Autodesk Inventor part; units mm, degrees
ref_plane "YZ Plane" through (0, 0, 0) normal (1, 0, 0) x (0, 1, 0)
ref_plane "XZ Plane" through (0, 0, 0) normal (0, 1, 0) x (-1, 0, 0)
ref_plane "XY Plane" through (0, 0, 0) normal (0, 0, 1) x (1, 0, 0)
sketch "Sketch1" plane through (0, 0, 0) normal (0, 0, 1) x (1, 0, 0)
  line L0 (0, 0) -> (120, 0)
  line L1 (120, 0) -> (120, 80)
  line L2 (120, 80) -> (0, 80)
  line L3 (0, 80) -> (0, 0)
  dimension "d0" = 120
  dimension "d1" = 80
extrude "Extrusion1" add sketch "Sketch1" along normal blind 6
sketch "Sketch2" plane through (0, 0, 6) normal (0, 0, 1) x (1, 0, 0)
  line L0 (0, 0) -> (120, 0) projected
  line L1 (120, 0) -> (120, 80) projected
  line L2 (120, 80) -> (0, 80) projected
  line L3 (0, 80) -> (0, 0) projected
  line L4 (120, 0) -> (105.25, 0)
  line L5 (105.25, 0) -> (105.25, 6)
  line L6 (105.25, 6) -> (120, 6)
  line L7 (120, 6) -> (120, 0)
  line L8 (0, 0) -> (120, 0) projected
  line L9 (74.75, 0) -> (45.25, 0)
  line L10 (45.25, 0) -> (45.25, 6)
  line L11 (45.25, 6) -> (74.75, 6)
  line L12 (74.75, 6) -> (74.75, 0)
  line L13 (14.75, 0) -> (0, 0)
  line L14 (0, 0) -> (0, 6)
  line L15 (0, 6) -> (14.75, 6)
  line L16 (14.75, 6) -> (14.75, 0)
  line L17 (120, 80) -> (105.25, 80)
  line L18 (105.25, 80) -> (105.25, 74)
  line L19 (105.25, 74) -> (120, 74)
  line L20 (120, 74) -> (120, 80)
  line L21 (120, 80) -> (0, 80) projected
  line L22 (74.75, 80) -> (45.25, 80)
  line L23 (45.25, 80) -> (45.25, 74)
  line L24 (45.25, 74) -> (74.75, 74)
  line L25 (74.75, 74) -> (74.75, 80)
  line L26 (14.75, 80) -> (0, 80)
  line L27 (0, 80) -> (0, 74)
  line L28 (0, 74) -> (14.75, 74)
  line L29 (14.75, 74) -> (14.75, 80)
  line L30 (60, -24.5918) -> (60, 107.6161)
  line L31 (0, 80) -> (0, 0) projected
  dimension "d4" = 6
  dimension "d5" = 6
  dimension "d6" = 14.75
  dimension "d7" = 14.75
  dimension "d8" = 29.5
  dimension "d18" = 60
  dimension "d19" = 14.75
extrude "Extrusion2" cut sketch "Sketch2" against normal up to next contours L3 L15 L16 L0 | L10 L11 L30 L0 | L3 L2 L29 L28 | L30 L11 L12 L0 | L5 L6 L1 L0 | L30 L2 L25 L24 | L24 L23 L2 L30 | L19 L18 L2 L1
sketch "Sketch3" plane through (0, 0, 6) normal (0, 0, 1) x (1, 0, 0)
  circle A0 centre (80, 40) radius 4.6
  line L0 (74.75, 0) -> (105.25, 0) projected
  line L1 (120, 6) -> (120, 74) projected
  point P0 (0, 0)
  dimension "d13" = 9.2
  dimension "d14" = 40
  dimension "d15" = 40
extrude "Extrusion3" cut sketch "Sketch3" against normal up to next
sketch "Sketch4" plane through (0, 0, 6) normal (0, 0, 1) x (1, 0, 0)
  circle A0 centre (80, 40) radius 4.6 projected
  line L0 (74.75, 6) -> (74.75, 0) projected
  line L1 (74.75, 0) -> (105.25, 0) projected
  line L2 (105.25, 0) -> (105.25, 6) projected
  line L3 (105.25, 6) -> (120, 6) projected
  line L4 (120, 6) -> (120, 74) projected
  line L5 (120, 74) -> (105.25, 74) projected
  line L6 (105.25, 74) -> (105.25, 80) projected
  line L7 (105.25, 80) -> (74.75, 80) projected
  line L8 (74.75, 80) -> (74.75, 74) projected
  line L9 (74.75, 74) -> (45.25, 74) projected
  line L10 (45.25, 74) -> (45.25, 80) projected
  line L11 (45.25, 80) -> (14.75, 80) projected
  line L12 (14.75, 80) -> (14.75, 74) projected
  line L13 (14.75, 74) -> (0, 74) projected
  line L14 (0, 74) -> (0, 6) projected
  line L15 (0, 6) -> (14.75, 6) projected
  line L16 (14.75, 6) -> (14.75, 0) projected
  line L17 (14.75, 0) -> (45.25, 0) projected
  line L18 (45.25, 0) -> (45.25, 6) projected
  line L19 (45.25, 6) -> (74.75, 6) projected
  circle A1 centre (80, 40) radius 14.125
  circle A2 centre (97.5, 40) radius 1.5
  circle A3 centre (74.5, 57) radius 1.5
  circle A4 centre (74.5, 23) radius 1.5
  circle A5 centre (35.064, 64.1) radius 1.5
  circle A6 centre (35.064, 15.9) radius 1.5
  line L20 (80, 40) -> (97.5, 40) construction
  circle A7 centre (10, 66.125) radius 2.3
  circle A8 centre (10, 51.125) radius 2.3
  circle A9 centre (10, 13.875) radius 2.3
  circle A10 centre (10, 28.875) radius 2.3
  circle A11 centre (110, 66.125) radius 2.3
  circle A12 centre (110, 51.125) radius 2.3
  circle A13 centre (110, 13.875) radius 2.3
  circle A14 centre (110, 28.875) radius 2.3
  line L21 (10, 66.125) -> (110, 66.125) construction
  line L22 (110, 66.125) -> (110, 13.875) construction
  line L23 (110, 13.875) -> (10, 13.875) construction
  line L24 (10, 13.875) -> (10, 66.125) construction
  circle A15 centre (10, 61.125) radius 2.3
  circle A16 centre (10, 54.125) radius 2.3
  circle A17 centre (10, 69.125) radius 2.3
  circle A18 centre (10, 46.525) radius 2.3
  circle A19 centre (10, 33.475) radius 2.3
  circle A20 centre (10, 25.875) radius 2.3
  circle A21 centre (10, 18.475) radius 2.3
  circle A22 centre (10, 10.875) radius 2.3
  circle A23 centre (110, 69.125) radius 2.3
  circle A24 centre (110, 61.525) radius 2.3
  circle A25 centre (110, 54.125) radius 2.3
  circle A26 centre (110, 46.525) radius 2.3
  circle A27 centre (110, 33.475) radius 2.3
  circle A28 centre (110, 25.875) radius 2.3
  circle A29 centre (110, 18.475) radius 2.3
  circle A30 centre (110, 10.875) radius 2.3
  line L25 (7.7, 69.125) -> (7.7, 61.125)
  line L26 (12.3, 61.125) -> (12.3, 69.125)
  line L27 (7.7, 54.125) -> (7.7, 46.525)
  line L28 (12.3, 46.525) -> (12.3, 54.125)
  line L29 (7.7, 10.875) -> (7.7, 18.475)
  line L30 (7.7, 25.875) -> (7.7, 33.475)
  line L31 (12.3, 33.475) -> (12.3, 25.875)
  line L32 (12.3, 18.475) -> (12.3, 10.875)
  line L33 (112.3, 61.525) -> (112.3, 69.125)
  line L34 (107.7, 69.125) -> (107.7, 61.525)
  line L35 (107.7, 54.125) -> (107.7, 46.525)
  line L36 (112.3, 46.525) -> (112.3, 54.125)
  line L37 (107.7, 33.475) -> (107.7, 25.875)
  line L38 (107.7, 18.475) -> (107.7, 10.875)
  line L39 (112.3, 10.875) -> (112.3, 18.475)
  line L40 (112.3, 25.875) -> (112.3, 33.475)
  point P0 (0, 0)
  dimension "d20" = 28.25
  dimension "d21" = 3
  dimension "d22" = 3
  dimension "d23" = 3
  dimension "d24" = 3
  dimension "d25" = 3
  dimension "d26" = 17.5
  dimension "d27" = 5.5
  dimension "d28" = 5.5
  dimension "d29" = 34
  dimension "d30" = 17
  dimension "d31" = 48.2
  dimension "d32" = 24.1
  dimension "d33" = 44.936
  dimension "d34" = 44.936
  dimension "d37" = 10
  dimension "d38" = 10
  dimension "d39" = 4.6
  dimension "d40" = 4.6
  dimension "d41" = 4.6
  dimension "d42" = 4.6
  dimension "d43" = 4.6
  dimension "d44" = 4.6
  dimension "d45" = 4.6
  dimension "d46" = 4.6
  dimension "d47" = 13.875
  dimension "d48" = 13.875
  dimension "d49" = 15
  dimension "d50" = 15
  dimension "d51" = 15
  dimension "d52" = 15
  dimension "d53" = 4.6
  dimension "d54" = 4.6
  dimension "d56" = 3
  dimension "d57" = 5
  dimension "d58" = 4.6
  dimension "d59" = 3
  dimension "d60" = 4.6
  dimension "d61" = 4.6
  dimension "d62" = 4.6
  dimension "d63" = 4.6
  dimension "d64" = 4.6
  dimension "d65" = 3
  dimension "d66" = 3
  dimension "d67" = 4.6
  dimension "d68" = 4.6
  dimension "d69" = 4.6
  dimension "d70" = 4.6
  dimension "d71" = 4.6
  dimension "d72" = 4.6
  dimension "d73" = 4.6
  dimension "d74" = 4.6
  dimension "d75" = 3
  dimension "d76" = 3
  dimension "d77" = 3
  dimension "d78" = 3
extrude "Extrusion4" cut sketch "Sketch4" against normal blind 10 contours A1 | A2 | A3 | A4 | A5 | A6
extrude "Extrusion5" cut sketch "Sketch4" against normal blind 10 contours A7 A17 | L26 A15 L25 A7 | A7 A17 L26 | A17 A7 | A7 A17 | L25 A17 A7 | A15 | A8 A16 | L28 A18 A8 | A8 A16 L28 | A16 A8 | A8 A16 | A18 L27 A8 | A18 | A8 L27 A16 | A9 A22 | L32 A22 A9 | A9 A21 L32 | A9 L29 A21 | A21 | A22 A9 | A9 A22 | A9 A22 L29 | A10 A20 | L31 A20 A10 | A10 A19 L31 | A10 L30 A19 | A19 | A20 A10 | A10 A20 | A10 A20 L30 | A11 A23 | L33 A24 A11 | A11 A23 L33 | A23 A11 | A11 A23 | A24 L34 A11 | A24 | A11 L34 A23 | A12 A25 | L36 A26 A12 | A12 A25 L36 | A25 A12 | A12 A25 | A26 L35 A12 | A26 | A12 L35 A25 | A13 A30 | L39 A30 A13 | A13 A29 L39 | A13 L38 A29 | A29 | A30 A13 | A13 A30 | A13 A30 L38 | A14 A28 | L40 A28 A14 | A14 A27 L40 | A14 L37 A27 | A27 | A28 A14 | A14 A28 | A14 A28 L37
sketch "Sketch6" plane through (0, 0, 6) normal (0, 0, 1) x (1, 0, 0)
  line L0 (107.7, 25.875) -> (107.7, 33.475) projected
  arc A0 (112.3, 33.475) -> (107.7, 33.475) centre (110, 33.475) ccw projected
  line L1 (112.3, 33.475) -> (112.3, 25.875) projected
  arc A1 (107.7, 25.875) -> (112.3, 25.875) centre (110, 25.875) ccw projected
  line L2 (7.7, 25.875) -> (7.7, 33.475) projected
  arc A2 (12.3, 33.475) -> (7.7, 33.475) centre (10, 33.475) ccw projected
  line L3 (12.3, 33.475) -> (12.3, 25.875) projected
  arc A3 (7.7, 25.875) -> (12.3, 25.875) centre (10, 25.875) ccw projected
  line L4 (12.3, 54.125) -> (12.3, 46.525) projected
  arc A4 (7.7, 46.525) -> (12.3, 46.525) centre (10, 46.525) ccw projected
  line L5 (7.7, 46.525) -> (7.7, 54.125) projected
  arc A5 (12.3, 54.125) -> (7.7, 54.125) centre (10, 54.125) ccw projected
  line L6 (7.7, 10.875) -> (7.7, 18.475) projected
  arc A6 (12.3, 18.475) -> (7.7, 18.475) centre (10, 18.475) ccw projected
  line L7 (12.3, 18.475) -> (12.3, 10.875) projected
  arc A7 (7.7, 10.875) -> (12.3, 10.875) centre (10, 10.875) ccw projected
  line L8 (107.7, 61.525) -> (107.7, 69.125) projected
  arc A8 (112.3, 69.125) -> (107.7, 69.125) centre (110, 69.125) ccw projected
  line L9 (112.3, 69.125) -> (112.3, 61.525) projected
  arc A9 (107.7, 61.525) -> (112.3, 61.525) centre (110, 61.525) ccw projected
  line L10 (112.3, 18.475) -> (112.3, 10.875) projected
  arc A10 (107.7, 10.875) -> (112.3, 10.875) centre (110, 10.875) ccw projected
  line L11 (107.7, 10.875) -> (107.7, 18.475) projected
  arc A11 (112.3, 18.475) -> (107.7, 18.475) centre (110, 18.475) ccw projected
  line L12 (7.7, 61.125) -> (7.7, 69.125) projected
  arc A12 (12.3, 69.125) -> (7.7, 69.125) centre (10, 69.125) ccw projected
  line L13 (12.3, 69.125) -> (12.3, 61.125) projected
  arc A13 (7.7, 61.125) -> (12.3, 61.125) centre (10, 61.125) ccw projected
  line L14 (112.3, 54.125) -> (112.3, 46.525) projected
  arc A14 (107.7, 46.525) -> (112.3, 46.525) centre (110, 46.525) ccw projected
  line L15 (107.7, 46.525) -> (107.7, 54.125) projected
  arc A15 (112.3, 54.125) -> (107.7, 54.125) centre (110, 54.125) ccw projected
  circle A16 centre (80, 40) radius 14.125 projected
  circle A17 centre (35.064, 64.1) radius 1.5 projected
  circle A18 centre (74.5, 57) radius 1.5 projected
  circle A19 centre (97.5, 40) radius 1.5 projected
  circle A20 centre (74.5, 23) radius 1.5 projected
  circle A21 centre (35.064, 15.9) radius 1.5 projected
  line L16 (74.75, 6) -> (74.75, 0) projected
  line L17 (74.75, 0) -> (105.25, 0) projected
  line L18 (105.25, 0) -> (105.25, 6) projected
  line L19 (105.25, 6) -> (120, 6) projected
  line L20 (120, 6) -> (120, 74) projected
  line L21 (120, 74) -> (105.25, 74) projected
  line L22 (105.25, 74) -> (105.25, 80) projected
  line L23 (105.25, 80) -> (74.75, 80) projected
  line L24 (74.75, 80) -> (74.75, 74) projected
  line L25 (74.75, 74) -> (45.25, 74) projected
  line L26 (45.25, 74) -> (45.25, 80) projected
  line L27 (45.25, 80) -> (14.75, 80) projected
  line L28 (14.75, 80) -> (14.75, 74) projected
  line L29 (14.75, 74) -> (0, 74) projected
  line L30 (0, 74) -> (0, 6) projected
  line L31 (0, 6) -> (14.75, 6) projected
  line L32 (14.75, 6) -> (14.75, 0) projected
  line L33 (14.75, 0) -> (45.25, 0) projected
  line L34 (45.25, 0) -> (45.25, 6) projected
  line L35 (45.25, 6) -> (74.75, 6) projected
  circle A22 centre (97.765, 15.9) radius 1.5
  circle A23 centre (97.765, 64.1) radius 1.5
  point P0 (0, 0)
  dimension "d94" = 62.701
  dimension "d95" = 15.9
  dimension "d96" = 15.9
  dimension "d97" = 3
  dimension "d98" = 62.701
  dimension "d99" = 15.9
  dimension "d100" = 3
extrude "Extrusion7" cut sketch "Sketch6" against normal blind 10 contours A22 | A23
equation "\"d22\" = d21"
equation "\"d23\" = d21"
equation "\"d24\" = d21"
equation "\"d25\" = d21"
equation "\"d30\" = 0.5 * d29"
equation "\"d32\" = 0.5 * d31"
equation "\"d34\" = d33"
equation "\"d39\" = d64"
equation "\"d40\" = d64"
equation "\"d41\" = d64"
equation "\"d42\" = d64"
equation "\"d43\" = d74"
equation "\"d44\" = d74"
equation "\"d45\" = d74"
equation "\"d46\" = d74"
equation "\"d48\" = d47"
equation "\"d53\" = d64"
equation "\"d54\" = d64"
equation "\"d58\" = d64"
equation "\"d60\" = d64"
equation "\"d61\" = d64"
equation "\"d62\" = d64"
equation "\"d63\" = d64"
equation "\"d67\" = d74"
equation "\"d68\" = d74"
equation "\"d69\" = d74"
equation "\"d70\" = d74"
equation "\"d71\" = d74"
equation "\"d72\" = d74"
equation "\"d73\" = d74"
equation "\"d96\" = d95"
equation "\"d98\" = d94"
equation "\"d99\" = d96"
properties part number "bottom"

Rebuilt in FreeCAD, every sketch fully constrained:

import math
import FreeCAD as App
import Part
import Sketcher

V = App.Vector


def add_polygon(sketch, points):
    """Adds a closed chain of lines whose ends are joined by coincident constraints."""
    first, n = sketch.GeometryCount, len(points)
    for a, b in zip(points, points[1:] + points[:1]):
        sketch.addGeometry(Part.LineSegment(App.Vector(*a, 0), App.Vector(*b, 0)), False)
    for i in range(n):
        sketch.addConstraint(Sketcher.Constraint("Coincident", first + i, 2, first + (i + 1) % n, 1))

doc = App.newDocument("Part")
body = doc.addObject("PartDesign::Body", "Body")

sketch1 = body.newObject("Sketcher::SketchObject", "Sketch")
sketch1.AttachmentSupport = (doc.getObject("XY_Plane"), [""])
sketch1.MapMode = "FlatFace"
add_polygon(sketch1, [(0, 80), (0, 0), (120, 0), (120, 80)])
sketch1.addConstraint(Sketcher.Constraint("Vertical", 0))
sketch1.addConstraint(Sketcher.Constraint("Horizontal", 1))
sketch1.addConstraint(Sketcher.Constraint("Vertical", 2))
sketch1.addConstraint(Sketcher.Constraint("Horizontal", 3))
sketch1.addConstraint(Sketcher.Constraint("Coincident", 0, 2, -1, 1))
sketch1.addConstraint(Sketcher.Constraint("DistanceX", 1, 1, 1, 2, 120.0))
sketch1.addConstraint(Sketcher.Constraint("DistanceY", 0, 2, 0, 1, 80.0))
pad1 = body.newObject("PartDesign::Pad", "Pad")
pad1.Profile = sketch1
pad1.Length = 6

sketch2 = body.newObject("Sketcher::SketchObject", "Sketch001")
sketch2.AttachmentSupport = (doc.getObject("XY_Plane"), [""])
sketch2.MapMode = "FlatFace"
sketch2.AttachmentOffset = App.Placement(V(0, 0, 6), App.Rotation())
add_polygon(sketch2, [(0, 6), (0, 0), (14.75, 0), (14.75, 6)])
add_polygon(sketch2, [(45.25, 6), (45.25, 0), (74.75, 0), (74.75, 6)])
add_polygon(sketch2, [(0, 80), (0, 74), (14.75, 74), (14.75, 80)])
add_polygon(sketch2, [(105.25, 6), (105.25, 0), (120, 0), (120, 6)])
add_polygon(sketch2, [(74.75, 80), (45.25, 80), (45.25, 74), (74.75, 74)])
add_polygon(sketch2, [(105.25, 74), (120, 74), (120, 80), (105.25, 80)])
sketch2.addConstraint(Sketcher.Constraint("Vertical", 0))
sketch2.addConstraint(Sketcher.Constraint("Horizontal", 1))
sketch2.addConstraint(Sketcher.Constraint("Vertical", 2))
sketch2.addConstraint(Sketcher.Constraint("Horizontal", 3))
sketch2.addConstraint(Sketcher.Constraint("Vertical", 4))
sketch2.addConstraint(Sketcher.Constraint("Horizontal", 5))
sketch2.addConstraint(Sketcher.Constraint("Vertical", 6))
sketch2.addConstraint(Sketcher.Constraint("Horizontal", 7))
sketch2.addConstraint(Sketcher.Constraint("Vertical", 8))
sketch2.addConstraint(Sketcher.Constraint("Horizontal", 9))
sketch2.addConstraint(Sketcher.Constraint("Vertical", 10))
sketch2.addConstraint(Sketcher.Constraint("Horizontal", 11))
sketch2.addConstraint(Sketcher.Constraint("Vertical", 12))
sketch2.addConstraint(Sketcher.Constraint("Horizontal", 13))
sketch2.addConstraint(Sketcher.Constraint("Vertical", 14))
sketch2.addConstraint(Sketcher.Constraint("Horizontal", 15))
sketch2.addConstraint(Sketcher.Constraint("Horizontal", 16))
sketch2.addConstraint(Sketcher.Constraint("Vertical", 17))
sketch2.addConstraint(Sketcher.Constraint("Horizontal", 18))
sketch2.addConstraint(Sketcher.Constraint("Vertical", 19))
sketch2.addConstraint(Sketcher.Constraint("Horizontal", 20))
sketch2.addConstraint(Sketcher.Constraint("Vertical", 21))
sketch2.addConstraint(Sketcher.Constraint("Horizontal", 22))
sketch2.addConstraint(Sketcher.Constraint("Vertical", 23))
sketch2.addConstraint(Sketcher.Constraint("Coincident", 0, 2, -1, 1))
sketch2.addConstraint(Sketcher.Constraint("PointOnObject", 4, 2, -1))
sketch2.addConstraint(Sketcher.Constraint("PointOnObject", 8, 2, -2))
sketch2.addConstraint(Sketcher.Constraint("PointOnObject", 12, 2, -1))
sketch2.addConstraint(Sketcher.Constraint("Horizontal", 3, 2, 6, 2))
sketch2.addConstraint(Sketcher.Constraint("Horizontal", 7, 2, 14, 2))
sketch2.addConstraint(Sketcher.Constraint("Horizontal", 11, 2, 16, 2))
sketch2.addConstraint(Sketcher.Constraint("Horizontal", 9, 2, 17, 2))
sketch2.addConstraint(Sketcher.Constraint("Horizontal", 18, 2, 20, 2))
sketch2.addConstraint(Sketcher.Constraint("Horizontal", 19, 2, 21, 2))
sketch2.addConstraint(Sketcher.Constraint("Vertical", 2, 2, 9, 2))
sketch2.addConstraint(Sketcher.Constraint("Vertical", 7, 2, 16, 2))
sketch2.addConstraint(Sketcher.Constraint("Vertical", 6, 2, 18, 2))
sketch2.addConstraint(Sketcher.Constraint("Vertical", 14, 2, 20, 2))
sketch2.addConstraint(Sketcher.Constraint("Vertical", 15, 2, 22, 2))
sketch2.addConstraint(Sketcher.Constraint("Equal", 11, 13))
sketch2.addConstraint(Sketcher.Constraint("Equal", 6, 8))
sketch2.addConstraint(Sketcher.Constraint("DistanceY", 0, 2, 0, 1, 6.0))
sketch2.addConstraint(Sketcher.Constraint("DistanceX", 5, 1, 5, 2, 29.5))
sketch2.addConstraint(Sketcher.Constraint("DistanceX", 1, 2, 5, 2, 60.0))
sketch2.addConstraint(Sketcher.Constraint("DistanceX", 4, 2, 12, 2, 60.0))
sketch2.addConstraint(Sketcher.Constraint("DistanceX", 1, 1, 1, 2, 14.75))
sketch2.addConstraint(Sketcher.Constraint("DistanceY", -1, 1, 8, 2, 74.0))
pocket1 = body.newObject("PartDesign::Pocket", "Pocket")
pocket1.Profile = sketch2
pocket1.Type = "UpToFirst"

sketch3 = body.newObject("Sketcher::SketchObject", "Sketch002")
sketch3.AttachmentSupport = (doc.getObject("XY_Plane"), [""])
sketch3.MapMode = "FlatFace"
sketch3.AttachmentOffset = App.Placement(V(0, 0, 6), App.Rotation())
sketch3.addGeometry(Part.Circle(V(80, 40, 0), V(0, 0, 1), 4.6), False)
sketch3.addConstraint(Sketcher.Constraint("Diameter", 0, 9.2))
sketch3.addConstraint(Sketcher.Constraint("DistanceY", -1, 1, 0, 3, 40.0))
sketch3.addConstraint(Sketcher.Constraint("DistanceX", -1, 1, 0, 3, 80.0))
pocket2 = body.newObject("PartDesign::Pocket", "Pocket001")
pocket2.Profile = sketch3
pocket2.Type = "UpToFirst"

sketch4 = body.newObject("Sketcher::SketchObject", "Sketch003")
sketch4.AttachmentSupport = (doc.getObject("XY_Plane"), [""])
sketch4.MapMode = "FlatFace"
sketch4.AttachmentOffset = App.Placement(V(0, 0, 6), App.Rotation())
sketch4.addGeometry(Part.Circle(V(80, 40, 0), V(0, 0, 1), 14.125), False)
sketch4.addGeometry(Part.Circle(V(80, 40, 0), V(0, 0, 1), 4.6), False)
sketch4.addGeometry(Part.Circle(V(97.5, 40, 0), V(0, 0, 1), 1.5), False)
sketch4.addGeometry(Part.Circle(V(74.5, 57, 0), V(0, 0, 1), 1.5), False)
sketch4.addGeometry(Part.Circle(V(74.5, 23, 0), V(0, 0, 1), 1.5), False)
sketch4.addGeometry(Part.Circle(V(35.064, 64.1, 0), V(0, 0, 1), 1.5), False)
sketch4.addGeometry(Part.Circle(V(35.064, 15.9, 0), V(0, 0, 1), 1.5), False)
sketch4.addConstraint(Sketcher.Constraint("Coincident", 1, 3, 0, 3))
sketch4.addConstraint(Sketcher.Constraint("Equal", 2, 3))
sketch4.addConstraint(Sketcher.Constraint("Equal", 3, 4))
sketch4.addConstraint(Sketcher.Constraint("Equal", 4, 5))
sketch4.addConstraint(Sketcher.Constraint("Equal", 5, 6))
sketch4.addConstraint(Sketcher.Constraint("Horizontal", 1, 3, 2, 3))
sketch4.addConstraint(Sketcher.Constraint("Vertical", 3, 3, 4, 3))
sketch4.addConstraint(Sketcher.Constraint("Vertical", 5, 3, 6, 3))
sketch4.addConstraint(Sketcher.Constraint("Diameter", 2, 3.0))
sketch4.addConstraint(Sketcher.Constraint("Diameter", 1, 9.2))
sketch4.addConstraint(Sketcher.Constraint("Diameter", 0, 28.25))
sketch4.addConstraint(Sketcher.Constraint("DistanceY", 0, 3, 3, 3, 17.0))
sketch4.addConstraint(Sketcher.Constraint("DistanceY", 4, 3, 0, 3, 17.0))
sketch4.addConstraint(Sketcher.Constraint("DistanceX", 0, 3, 2, 3, 17.5))
sketch4.addConstraint(Sketcher.Constraint("DistanceX", 3, 3, 0, 3, 5.5))
sketch4.addConstraint(Sketcher.Constraint("DistanceY", 0, 3, 5, 3, 24.1))
sketch4.addConstraint(Sketcher.Constraint("DistanceY", 6, 3, 5, 3, 48.2))
sketch4.addConstraint(Sketcher.Constraint("DistanceX", -1, 1, 0, 3, 80.0))
sketch4.addConstraint(Sketcher.Constraint("DistanceY", -1, 1, 0, 3, 40.0))
sketch4.addConstraint(Sketcher.Constraint("DistanceX", 5, 3, 0, 3, 44.936))
pocket3 = body.newObject("PartDesign::Pocket", "Pocket002")
pocket3.Profile = sketch4
pocket3.Length = 10

sketch5 = body.newObject("Sketcher::SketchObject", "Sketch004")
sketch5.AttachmentSupport = (doc.getObject("XY_Plane"), [""])
sketch5.MapMode = "FlatFace"
sketch5.AttachmentOffset = App.Placement(V(0, 0, 6), App.Rotation())
sketch5.addGeometry(Part.LineSegment(V(12.3, 61.125, 0), V(12.3, 69.125, 0)), False)
sketch5.addGeometry(Part.ArcOfCircle(Part.Circle(V(10, 69.125, 0), V(0, 0, 1), 2.3), math.radians(0), math.radians(180)), False)
sketch5.addGeometry(Part.LineSegment(V(7.7, 69.125, 0), V(7.7, 61.125, 0)), False)
sketch5.addGeometry(Part.ArcOfCircle(Part.Circle(V(10, 61.125, 0), V(0, 0, 1), 2.3), math.radians(180), math.radians(360)), False)
sketch5.addGeometry(Part.LineSegment(V(12.3, 46.525, 0), V(12.3, 54.125, 0)), False)
sketch5.addGeometry(Part.ArcOfCircle(Part.Circle(V(10, 54.125, 0), V(0, 0, 1), 2.3), math.radians(0), math.radians(180)), False)
sketch5.addGeometry(Part.LineSegment(V(7.7, 54.125, 0), V(7.7, 46.525, 0)), False)
sketch5.addGeometry(Part.ArcOfCircle(Part.Circle(V(10, 46.525, 0), V(0, 0, 1), 2.3), math.radians(180), math.radians(360)), False)
sketch5.addGeometry(Part.LineSegment(V(12.3, 10.875, 0), V(12.3, 18.475, 0)), False)
sketch5.addGeometry(Part.ArcOfCircle(Part.Circle(V(10, 18.475, 0), V(0, 0, 1), 2.3), math.radians(0), math.radians(180)), False)
sketch5.addGeometry(Part.LineSegment(V(7.7, 18.475, 0), V(7.7, 10.875, 0)), False)
sketch5.addGeometry(Part.ArcOfCircle(Part.Circle(V(10, 10.875, 0), V(0, 0, 1), 2.3), math.radians(180), math.radians(360)), False)
sketch5.addGeometry(Part.LineSegment(V(12.3, 25.875, 0), V(12.3, 33.475, 0)), False)
sketch5.addGeometry(Part.ArcOfCircle(Part.Circle(V(10, 33.475, 0), V(0, 0, 1), 2.3), math.radians(0), math.radians(180)), False)
sketch5.addGeometry(Part.LineSegment(V(7.7, 33.475, 0), V(7.7, 25.875, 0)), False)
sketch5.addGeometry(Part.ArcOfCircle(Part.Circle(V(10, 25.875, 0), V(0, 0, 1), 2.3), math.radians(180), math.radians(360)), False)
sketch5.addGeometry(Part.LineSegment(V(112.3, 61.525, 0), V(112.3, 69.125, 0)), False)
sketch5.addGeometry(Part.ArcOfCircle(Part.Circle(V(110, 69.125, 0), V(0, 0, 1), 2.3), math.radians(0), math.radians(180)), False)
sketch5.addGeometry(Part.LineSegment(V(107.7, 69.125, 0), V(107.7, 61.525, 0)), False)
sketch5.addGeometry(Part.ArcOfCircle(Part.Circle(V(110, 61.525, 0), V(0, 0, 1), 2.3), math.radians(180), math.radians(360)), False)
sketch5.addGeometry(Part.LineSegment(V(112.3, 46.525, 0), V(112.3, 54.125, 0)), False)
sketch5.addGeometry(Part.ArcOfCircle(Part.Circle(V(110, 54.125, 0), V(0, 0, 1), 2.3), math.radians(0), math.radians(180)), False)
sketch5.addGeometry(Part.LineSegment(V(107.7, 54.125, 0), V(107.7, 46.525, 0)), False)
sketch5.addGeometry(Part.ArcOfCircle(Part.Circle(V(110, 46.525, 0), V(0, 0, 1), 2.3), math.radians(180), math.radians(360)), False)
sketch5.addGeometry(Part.LineSegment(V(112.3, 10.875, 0), V(112.3, 18.475, 0)), False)
sketch5.addGeometry(Part.ArcOfCircle(Part.Circle(V(110, 18.475, 0), V(0, 0, 1), 2.3), math.radians(0), math.radians(180)), False)
sketch5.addGeometry(Part.LineSegment(V(107.7, 18.475, 0), V(107.7, 10.875, 0)), False)
sketch5.addGeometry(Part.ArcOfCircle(Part.Circle(V(110, 10.875, 0), V(0, 0, 1), 2.3), math.radians(180), math.radians(360)), False)
sketch5.addGeometry(Part.LineSegment(V(112.3, 25.875, 0), V(112.3, 33.475, 0)), False)
sketch5.addGeometry(Part.ArcOfCircle(Part.Circle(V(110, 33.475, 0), V(0, 0, 1), 2.3), math.radians(0), math.radians(180)), False)
sketch5.addGeometry(Part.LineSegment(V(107.7, 33.475, 0), V(107.7, 25.875, 0)), False)
sketch5.addGeometry(Part.ArcOfCircle(Part.Circle(V(110, 25.875, 0), V(0, 0, 1), 2.3), math.radians(180), math.radians(360)), False)
sketch5.addConstraint(Sketcher.Constraint("Tangent", 0, 2, 1, 1))
sketch5.addConstraint(Sketcher.Constraint("Tangent", 1, 2, 2, 1))
sketch5.addConstraint(Sketcher.Constraint("Tangent", 2, 2, 3, 1))
sketch5.addConstraint(Sketcher.Constraint("Tangent", 3, 2, 0, 1))
sketch5.addConstraint(Sketcher.Constraint("Tangent", 4, 2, 5, 1))
sketch5.addConstraint(Sketcher.Constraint("Tangent", 5, 2, 6, 1))
sketch5.addConstraint(Sketcher.Constraint("Tangent", 6, 2, 7, 1))
sketch5.addConstraint(Sketcher.Constraint("Tangent", 7, 2, 4, 1))
sketch5.addConstraint(Sketcher.Constraint("Tangent", 8, 2, 9, 1))
sketch5.addConstraint(Sketcher.Constraint("Tangent", 9, 2, 10, 1))
sketch5.addConstraint(Sketcher.Constraint("Tangent", 10, 2, 11, 1))
sketch5.addConstraint(Sketcher.Constraint("Tangent", 11, 2, 8, 1))
sketch5.addConstraint(Sketcher.Constraint("Tangent", 12, 2, 13, 1))
sketch5.addConstraint(Sketcher.Constraint("Tangent", 13, 2, 14, 1))
sketch5.addConstraint(Sketcher.Constraint("Tangent", 14, 2, 15, 1))
sketch5.addConstraint(Sketcher.Constraint("Tangent", 15, 2, 12, 1))
sketch5.addConstraint(Sketcher.Constraint("Tangent", 16, 2, 17, 1))
sketch5.addConstraint(Sketcher.Constraint("Tangent", 17, 2, 18, 1))
sketch5.addConstraint(Sketcher.Constraint("Tangent", 18, 2, 19, 1))
sketch5.addConstraint(Sketcher.Constraint("Tangent", 19, 2, 16, 1))
sketch5.addConstraint(Sketcher.Constraint("Tangent", 20, 2, 21, 1))
sketch5.addConstraint(Sketcher.Constraint("Tangent", 21, 2, 22, 1))
sketch5.addConstraint(Sketcher.Constraint("Tangent", 22, 2, 23, 1))
sketch5.addConstraint(Sketcher.Constraint("Tangent", 23, 2, 20, 1))
sketch5.addConstraint(Sketcher.Constraint("Tangent", 24, 2, 25, 1))
sketch5.addConstraint(Sketcher.Constraint("Tangent", 25, 2, 26, 1))
sketch5.addConstraint(Sketcher.Constraint("Tangent", 26, 2, 27, 1))
sketch5.addConstraint(Sketcher.Constraint("Tangent", 27, 2, 24, 1))
sketch5.addConstraint(Sketcher.Constraint("Tangent", 28, 2, 29, 1))
sketch5.addConstraint(Sketcher.Constraint("Tangent", 29, 2, 30, 1))
sketch5.addConstraint(Sketcher.Constraint("Tangent", 30, 2, 31, 1))
sketch5.addConstraint(Sketcher.Constraint("Tangent", 31, 2, 28, 1))
sketch5.addConstraint(Sketcher.Constraint("Vertical", 0))
sketch5.addConstraint(Sketcher.Constraint("Vertical", 2))
sketch5.addConstraint(Sketcher.Constraint("Vertical", 4))
sketch5.addConstraint(Sketcher.Constraint("Vertical", 6))
sketch5.addConstraint(Sketcher.Constraint("Vertical", 8))
sketch5.addConstraint(Sketcher.Constraint("Vertical", 10))
sketch5.addConstraint(Sketcher.Constraint("Vertical", 12))
sketch5.addConstraint(Sketcher.Constraint("Vertical", 14))
sketch5.addConstraint(Sketcher.Constraint("Vertical", 16))
sketch5.addConstraint(Sketcher.Constraint("Vertical", 18))
sketch5.addConstraint(Sketcher.Constraint("Vertical", 20))
sketch5.addConstraint(Sketcher.Constraint("Vertical", 22))
sketch5.addConstraint(Sketcher.Constraint("Vertical", 24))
sketch5.addConstraint(Sketcher.Constraint("Vertical", 26))
sketch5.addConstraint(Sketcher.Constraint("Vertical", 28))
sketch5.addConstraint(Sketcher.Constraint("Vertical", 30))
sketch5.addConstraint(Sketcher.Constraint("Equal", 3, 5))
sketch5.addConstraint(Sketcher.Constraint("Equal", 7, 9))
sketch5.addConstraint(Sketcher.Constraint("Equal", 11, 13))
sketch5.addConstraint(Sketcher.Constraint("Equal", 15, 17))
sketch5.addConstraint(Sketcher.Constraint("Equal", 19, 21))
sketch5.addConstraint(Sketcher.Constraint("Equal", 23, 25))
sketch5.addConstraint(Sketcher.Constraint("Equal", 27, 29))
sketch5.addConstraint(Sketcher.Constraint("Horizontal", 1, 3, 17, 3))
sketch5.addConstraint(Sketcher.Constraint("Horizontal", 5, 3, 21, 3))
sketch5.addConstraint(Sketcher.Constraint("Horizontal", 7, 3, 23, 3))
sketch5.addConstraint(Sketcher.Constraint("Horizontal", 9, 3, 25, 3))
sketch5.addConstraint(Sketcher.Constraint("Horizontal", 11, 3, 27, 3))
sketch5.addConstraint(Sketcher.Constraint("Horizontal", 13, 3, 29, 3))
sketch5.addConstraint(Sketcher.Constraint("Horizontal", 15, 3, 31, 3))
sketch5.addConstraint(Sketcher.Constraint("Vertical", 3, 3, 5, 3))
sketch5.addConstraint(Sketcher.Constraint("Vertical", 7, 3, 9, 3))
sketch5.addConstraint(Sketcher.Constraint("Vertical", 11, 3, 13, 3))
sketch5.addConstraint(Sketcher.Constraint("Vertical", 19, 3, 21, 3))
sketch5.addConstraint(Sketcher.Constraint("Vertical", 23, 3, 25, 3))
sketch5.addConstraint(Sketcher.Constraint("Vertical", 27, 3, 29, 3))
sketch5.addConstraint(Sketcher.Constraint("Equal", 6, 8))
sketch5.addConstraint(Sketcher.Constraint("Equal", 10, 12))
sketch5.addConstraint(Sketcher.Constraint("Equal", 14, 16))
sketch5.addConstraint(Sketcher.Constraint("Radius", 1, 2.3))
sketch5.addConstraint(Sketcher.Constraint("DistanceX", -1, 1, 1, 3, 10.0))
sketch5.addConstraint(Sketcher.Constraint("DistanceY", 5, 3, 1, 3, 15.0))
sketch5.addConstraint(Sketcher.Constraint("DistanceY", 9, 3, 13, 3, 15.0))
sketch5.addConstraint(Sketcher.Constraint("DistanceY", 0, 1, 0, 2, 8.0))
sketch5.addConstraint(Sketcher.Constraint("DistanceY", 15, 3, 5, 3, 28.25))
sketch5.addConstraint(Sketcher.Constraint("DistanceY", 4, 1, 4, 2, 7.6))
sketch5.addConstraint(Sketcher.Constraint("DistanceX", -1, 1, 17, 3, 110.0))
sketch5.addConstraint(Sketcher.Constraint("DistanceY", -1, 1, 1, 3, 69.125))
pocket4 = body.newObject("PartDesign::Pocket", "Pocket003")
pocket4.Profile = sketch5
pocket4.Length = 10

sketch6 = body.newObject("Sketcher::SketchObject", "Sketch005")
sketch6.AttachmentSupport = (doc.getObject("XY_Plane"), [""])
sketch6.MapMode = "FlatFace"
sketch6.AttachmentOffset = App.Placement(V(0, 0, 6), App.Rotation())
sketch6.addGeometry(Part.Circle(V(97.765, 15.9, 0), V(0, 0, 1), 1.5), False)
sketch6.addGeometry(Part.Circle(V(97.765, 64.1, 0), V(0, 0, 1), 1.5), False)
sketch6.addConstraint(Sketcher.Constraint("Equal", 0, 1))
sketch6.addConstraint(Sketcher.Constraint("Vertical", 0, 3, 1, 3))
sketch6.addConstraint(Sketcher.Constraint("Diameter", 0, 3.0))
sketch6.addConstraint(Sketcher.Constraint("DistanceY", -1, 1, 0, 3, 15.9))
sketch6.addConstraint(Sketcher.Constraint("DistanceY", -1, 1, 1, 3, 64.1))
sketch6.addConstraint(Sketcher.Constraint("DistanceX", -1, 1, 0, 3, 97.765))
pocket5 = body.newObject("PartDesign::Pocket", "Pocket004")
pocket5.Profile = sketch6
pocket5.Length = 10

doc.recompute()
